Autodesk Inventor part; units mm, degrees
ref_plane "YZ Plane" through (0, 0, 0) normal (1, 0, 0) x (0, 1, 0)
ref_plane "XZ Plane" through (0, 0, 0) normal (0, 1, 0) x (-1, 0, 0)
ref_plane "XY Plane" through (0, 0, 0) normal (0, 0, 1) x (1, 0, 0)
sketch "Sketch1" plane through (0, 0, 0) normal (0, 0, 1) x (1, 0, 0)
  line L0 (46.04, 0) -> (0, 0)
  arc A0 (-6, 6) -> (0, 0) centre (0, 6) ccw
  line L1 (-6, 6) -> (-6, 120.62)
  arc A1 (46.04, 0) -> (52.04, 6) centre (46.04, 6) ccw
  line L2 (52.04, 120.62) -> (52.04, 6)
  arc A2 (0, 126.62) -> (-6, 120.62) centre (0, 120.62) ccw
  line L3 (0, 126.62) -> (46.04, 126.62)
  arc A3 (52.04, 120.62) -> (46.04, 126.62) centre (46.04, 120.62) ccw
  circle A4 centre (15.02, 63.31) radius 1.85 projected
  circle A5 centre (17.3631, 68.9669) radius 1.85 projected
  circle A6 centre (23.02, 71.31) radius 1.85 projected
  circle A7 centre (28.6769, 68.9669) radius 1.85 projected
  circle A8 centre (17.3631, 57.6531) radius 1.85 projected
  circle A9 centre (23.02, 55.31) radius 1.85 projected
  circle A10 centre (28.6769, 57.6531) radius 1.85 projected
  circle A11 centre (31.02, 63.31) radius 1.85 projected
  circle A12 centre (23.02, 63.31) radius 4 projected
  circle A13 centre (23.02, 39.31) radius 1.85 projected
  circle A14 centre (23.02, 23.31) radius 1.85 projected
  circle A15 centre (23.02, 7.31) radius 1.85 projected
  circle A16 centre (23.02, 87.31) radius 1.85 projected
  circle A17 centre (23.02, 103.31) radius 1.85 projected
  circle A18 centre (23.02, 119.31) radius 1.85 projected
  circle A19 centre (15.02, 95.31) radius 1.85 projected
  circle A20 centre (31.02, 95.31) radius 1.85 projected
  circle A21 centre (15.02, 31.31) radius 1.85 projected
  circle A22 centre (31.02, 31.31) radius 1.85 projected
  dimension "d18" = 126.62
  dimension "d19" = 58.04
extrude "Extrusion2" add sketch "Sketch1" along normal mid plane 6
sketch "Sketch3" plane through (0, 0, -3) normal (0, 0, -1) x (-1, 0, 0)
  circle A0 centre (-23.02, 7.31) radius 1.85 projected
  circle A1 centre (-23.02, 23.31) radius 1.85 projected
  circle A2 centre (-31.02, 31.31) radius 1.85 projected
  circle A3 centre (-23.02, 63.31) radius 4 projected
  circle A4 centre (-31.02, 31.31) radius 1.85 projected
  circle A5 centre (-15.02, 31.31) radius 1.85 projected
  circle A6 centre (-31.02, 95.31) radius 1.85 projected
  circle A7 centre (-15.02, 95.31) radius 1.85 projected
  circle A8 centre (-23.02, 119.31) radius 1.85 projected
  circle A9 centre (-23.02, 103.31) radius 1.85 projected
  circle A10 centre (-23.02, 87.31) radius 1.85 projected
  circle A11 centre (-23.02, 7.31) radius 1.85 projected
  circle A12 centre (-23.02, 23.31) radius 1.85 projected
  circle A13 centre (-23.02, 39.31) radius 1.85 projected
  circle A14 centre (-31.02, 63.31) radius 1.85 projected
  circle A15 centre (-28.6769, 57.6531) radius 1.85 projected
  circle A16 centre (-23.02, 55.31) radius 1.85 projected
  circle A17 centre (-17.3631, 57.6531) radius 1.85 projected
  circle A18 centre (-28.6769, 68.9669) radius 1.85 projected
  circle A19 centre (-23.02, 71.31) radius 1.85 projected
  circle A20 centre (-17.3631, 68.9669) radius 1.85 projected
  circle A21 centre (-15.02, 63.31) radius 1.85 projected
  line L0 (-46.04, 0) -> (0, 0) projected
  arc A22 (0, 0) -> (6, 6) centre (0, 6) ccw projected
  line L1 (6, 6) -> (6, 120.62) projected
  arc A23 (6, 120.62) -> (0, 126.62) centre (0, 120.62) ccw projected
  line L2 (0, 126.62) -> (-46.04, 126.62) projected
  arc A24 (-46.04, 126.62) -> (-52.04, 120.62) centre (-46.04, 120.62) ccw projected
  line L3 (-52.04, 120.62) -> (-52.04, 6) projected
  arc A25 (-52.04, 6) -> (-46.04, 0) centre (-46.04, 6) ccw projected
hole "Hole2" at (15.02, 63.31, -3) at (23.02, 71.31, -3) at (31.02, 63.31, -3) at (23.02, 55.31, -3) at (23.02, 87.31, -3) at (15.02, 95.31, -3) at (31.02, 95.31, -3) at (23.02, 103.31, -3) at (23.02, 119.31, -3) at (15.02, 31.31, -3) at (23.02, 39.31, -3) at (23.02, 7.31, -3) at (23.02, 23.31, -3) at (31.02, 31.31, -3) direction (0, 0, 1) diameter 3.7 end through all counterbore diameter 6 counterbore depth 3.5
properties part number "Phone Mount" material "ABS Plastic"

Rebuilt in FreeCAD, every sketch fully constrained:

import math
import FreeCAD as App
import Part
import Sketcher

V = App.Vector

doc = App.newDocument("Part")
params = doc.addObject("Spreadsheet::Sheet", "Params")
for row, (alias, value) in enumerate([
    ("sketch1_diameter", "8 mm"),
    ("sketch1_radius", "6 mm"),
    ("sketch1_diameter2", "3.7 mm"),
    ("sketch1_width", "46.04 mm"),
    ("pad1_length", "6 mm"),
    ("sketch2_diameter", "3.7 mm"),
    ("hole_diameter", "3.7 mm"),
    ("hole_cbore_diameter", "6 mm"),
    ("hole_cbore_depth", "3.5 mm"),
], start=1):
    params.set(f"A{row}", alias)
    params.set(f"B{row}", "=" + value)
    params.setAlias(f"B{row}", alias)

body = doc.addObject("PartDesign::Body", "Body")

# Sketch on XY plane
sketch1 = body.newObject("Sketcher::SketchObject", "Sketch")
sketch1.AttachmentSupport = (doc.getObject("XY_Plane"), [""])
sketch1.MapMode = "FlatFace"
sketch1.addGeometry(Part.LineSegment(V(0, 0, 0), V(46, 0, 0)), False)
sketch1.addGeometry(Part.ArcOfCircle(Part.Circle(V(46, 6, 0), V(0, 0, 1), 6), math.radians(-90), math.radians(0)), False)
sketch1.addGeometry(Part.LineSegment(V(52, 6, 0), V(52, 120.6, 0)), False)
sketch1.addGeometry(Part.ArcOfCircle(Part.Circle(V(46, 120.6, 0), V(0, 0, 1), 6), math.radians(0), math.radians(90)), False)
sketch1.addGeometry(Part.LineSegment(V(46, 126.6, 0), V(0, 126.6, 0)), False)
sketch1.addGeometry(Part.ArcOfCircle(Part.Circle(V(0, 120.6, 0), V(0, 0, 1), 6), math.radians(90), math.radians(180)), False)
sketch1.addGeometry(Part.LineSegment(V(-6, 120.6, 0), V(-6, 6, 0)), False)
sketch1.addGeometry(Part.ArcOfCircle(Part.Circle(V(0, 6, 0), V(0, 0, 1), 6), math.radians(180), math.radians(270)), False)
sketch1.addGeometry(Part.Circle(V(15, 31.3, 0), V(0, 0, 1), 1.9), False)
sketch1.addGeometry(Part.Circle(V(15, 63.3, 0), V(0, 0, 1), 1.9), False)
sketch1.addGeometry(Part.Circle(V(17.4, 57.7, 0), V(0, 0, 1), 1.9), False)
sketch1.addGeometry(Part.Circle(V(23, 7.3, 0), V(0, 0, 1), 1.9), False)
sketch1.addGeometry(Part.Circle(V(23, 23.3, 0), V(0, 0, 1), 1.9), False)
sketch1.addGeometry(Part.Circle(V(31, 31.3, 0), V(0, 0, 1), 1.9), False)
sketch1.addGeometry(Part.Circle(V(23, 39.3, 0), V(0, 0, 1), 1.9), False)
sketch1.addGeometry(Part.Circle(V(23, 55.3, 0), V(0, 0, 1), 1.9), False)
sketch1.addGeometry(Part.Circle(V(23, 63.3, 0), V(0, 0, 1), 4), False)
sketch1.addGeometry(Part.Circle(V(28.7, 57.7, 0), V(0, 0, 1), 1.9), False)
sketch1.addGeometry(Part.Circle(V(31, 63.3, 0), V(0, 0, 1), 1.9), False)
sketch1.addGeometry(Part.Circle(V(17.4, 69, 0), V(0, 0, 1), 1.9), False)
sketch1.addGeometry(Part.Circle(V(15, 95.3, 0), V(0, 0, 1), 1.9), False)
sketch1.addGeometry(Part.Circle(V(28.7, 69, 0), V(0, 0, 1), 1.9), False)
sketch1.addGeometry(Part.Circle(V(23, 71.3, 0), V(0, 0, 1), 1.9), False)
sketch1.addGeometry(Part.Circle(V(23, 87.3, 0), V(0, 0, 1), 1.9), False)
sketch1.addGeometry(Part.Circle(V(23, 103.3, 0), V(0, 0, 1), 1.9), False)
sketch1.addGeometry(Part.Circle(V(31, 95.3, 0), V(0, 0, 1), 1.9), False)
sketch1.addGeometry(Part.Circle(V(23, 119.3, 0), V(0, 0, 1), 1.9), False)
sketch1.addConstraint(Sketcher.Constraint("Tangent", 0, 2, 1, 1))
sketch1.addConstraint(Sketcher.Constraint("Tangent", 1, 2, 2, 1))
sketch1.addConstraint(Sketcher.Constraint("Tangent", 2, 2, 3, 1))
sketch1.addConstraint(Sketcher.Constraint("Tangent", 3, 2, 4, 1))
sketch1.addConstraint(Sketcher.Constraint("Tangent", 4, 2, 5, 1))
sketch1.addConstraint(Sketcher.Constraint("Tangent", 5, 2, 6, 1))
sketch1.addConstraint(Sketcher.Constraint("Tangent", 6, 2, 7, 1))
sketch1.addConstraint(Sketcher.Constraint("Tangent", 7, 2, 0, 1))
sketch1.addConstraint(Sketcher.Constraint("Horizontal", 0))
sketch1.addConstraint(Sketcher.Constraint("Vertical", 2))
sketch1.addConstraint(Sketcher.Constraint("Horizontal", 4))
sketch1.addConstraint(Sketcher.Constraint("Vertical", 6))
sketch1.addConstraint(Sketcher.Constraint("Coincident", 7, 2, -1, 1))
sketch1.addConstraint(Sketcher.Constraint("Equal", 1, 3))
sketch1.addConstraint(Sketcher.Constraint("Equal", 3, 5))
sketch1.addConstraint(Sketcher.Constraint("Equal", 5, 7))
sketch1.addConstraint(Sketcher.Constraint("Equal", 8, 9))
sketch1.addConstraint(Sketcher.Constraint("Equal", 9, 10))
sketch1.addConstraint(Sketcher.Constraint("Equal", 10, 11))
sketch1.addConstraint(Sketcher.Constraint("Equal", 11, 12))
sketch1.addConstraint(Sketcher.Constraint("Equal", 12, 13))
sketch1.addConstraint(Sketcher.Constraint("Equal", 13, 14))
sketch1.addConstraint(Sketcher.Constraint("Equal", 14, 15))
sketch1.addConstraint(Sketcher.Constraint("Equal", 15, 17))
sketch1.addConstraint(Sketcher.Constraint("Equal", 17, 18))
sketch1.addConstraint(Sketcher.Constraint("Equal", 18, 19))
sketch1.addConstraint(Sketcher.Constraint("Equal", 19, 20))
sketch1.addConstraint(Sketcher.Constraint("Equal", 20, 21))
sketch1.addConstraint(Sketcher.Constraint("Equal", 21, 22))
sketch1.addConstraint(Sketcher.Constraint("Equal", 22, 23))
sketch1.addConstraint(Sketcher.Constraint("Equal", 23, 24))
sketch1.addConstraint(Sketcher.Constraint("Equal", 24, 25))
sketch1.addConstraint(Sketcher.Constraint("Equal", 25, 26))
sketch1.addConstraint(Sketcher.Constraint("Horizontal", 8, 3, 13, 3))
sketch1.addConstraint(Sketcher.Constraint("Horizontal", 9, 3, 16, 3))
sketch1.addConstraint(Sketcher.Constraint("Horizontal", 10, 3, 17, 3))
sketch1.addConstraint(Sketcher.Constraint("Horizontal", 16, 3, 18, 3))
sketch1.addConstraint(Sketcher.Constraint("Horizontal", 19, 3, 21, 3))
sketch1.addConstraint(Sketcher.Constraint("Horizontal", 20, 3, 25, 3))
sketch1.addConstraint(Sketcher.Constraint("Vertical", 8, 3, 9, 3))
sketch1.addConstraint(Sketcher.Constraint("Vertical", 11, 3, 12, 3))
sketch1.addConstraint(Sketcher.Constraint("Vertical", 12, 3, 14, 3))
sketch1.addConstraint(Sketcher.Constraint("Vertical", 14, 3, 15, 3))
sketch1.addConstraint(Sketcher.Constraint("Vertical", 15, 3, 16, 3))
sketch1.addConstraint(Sketcher.Constraint("Vertical", 13, 3, 18, 3))
sketch1.addConstraint(Sketcher.Constraint("Vertical", 10, 3, 19, 3))
sketch1.addConstraint(Sketcher.Constraint("Vertical", 9, 3, 20, 3))
sketch1.addConstraint(Sketcher.Constraint("Vertical", 17, 3, 21, 3))
sketch1.addConstraint(Sketcher.Constraint("Vertical", 16, 3, 22, 3))
sketch1.addConstraint(Sketcher.Constraint("Vertical", 22, 3, 23, 3))
sketch1.addConstraint(Sketcher.Constraint("Vertical", 23, 3, 24, 3))
sketch1.addConstraint(Sketcher.Constraint("Vertical", 18, 3, 25, 3))
sketch1.addConstraint(Sketcher.Constraint("Vertical", 24, 3, 26, 3))
sketch1.addConstraint(Sketcher.Constraint("Diameter", 16, 8.0))
sketch1.addConstraint(Sketcher.Constraint("Radius", 1, 6.0))
sketch1.addConstraint(Sketcher.Constraint("Diameter", 8, 3.7))
sketch1.addConstraint(Sketcher.Constraint("DistanceY", -1, 1, 3, 2, 126.62))
sketch1.addConstraint(Sketcher.Constraint("DistanceY", 8, 3, 9, 3, 32.0))
sketch1.addConstraint(Sketcher.Constraint("DistanceX", 8, 3, 11, 3, 8.0))
sketch1.addConstraint(Sketcher.Constraint("DistanceY", 11, 3, 8, 3, 24.0))
sketch1.addConstraint(Sketcher.Constraint("DistanceY", 12, 3, 8, 3, 8.0))
sketch1.addConstraint(Sketcher.Constraint("DistanceX", 12, 3, 13, 3, 8.0))
sketch1.addConstraint(Sketcher.Constraint("DistanceY", 8, 3, 14, 3, 8.0))
sketch1.addConstraint(Sketcher.Constraint("DistanceY", 15, 3, 9, 3, 8.0))
sketch1.addConstraint(Sketcher.Constraint("DistanceY", 9, 3, 20, 3, 32.0))
sketch1.addConstraint(Sketcher.Constraint("DistanceY", 16, 3, 22, 3, 8.0))
sketch1.addConstraint(Sketcher.Constraint("DistanceY", 23, 3, 20, 3, 8.0))
sketch1.addConstraint(Sketcher.Constraint("DistanceY", 20, 3, 24, 3, 8.0))
sketch1.addConstraint(Sketcher.Constraint("DistanceY", 24, 3, 26, 3, 16.0))
sketch1.addConstraint(Sketcher.Constraint("DistanceX", 0, 1, 0, 2, 46.04))
sketch1.addConstraint(Sketcher.Constraint("DistanceX", -1, 1, 8, 3, 15.02))
sketch1.addConstraint(Sketcher.Constraint("DistanceY", -1, 1, 8, 3, 31.31))
sketch1.addConstraint(Sketcher.Constraint("DistanceX", -1, 1, 10, 3, 17.363))
sketch1.addConstraint(Sketcher.Constraint("DistanceY", -1, 1, 10, 3, 57.653))
sketch1.addConstraint(Sketcher.Constraint("DistanceX", -1, 1, 17, 3, 28.677))
sketch1.addConstraint(Sketcher.Constraint("DistanceY", -1, 1, 19, 3, 68.967))
sketch1.setExpression("Constraints[53]", "Params.sketch1_diameter")
sketch1.setExpression("Constraints[54]", "Params.sketch1_radius")
sketch1.setExpression("Constraints[55]", "Params.sketch1_diameter2")
sketch1.setExpression("Constraints[69]", "Params.sketch1_width")
pad1 = body.newObject("PartDesign::Pad", "Pad")
pad1.Profile = sketch1
pad1.setExpression("Length", "Params.pad1_length")
pad1.Midplane = True

# Sketch on XY plane
sketch2 = body.newObject("Sketcher::SketchObject", "Sketch001")
sketch2.AttachmentSupport = (doc.getObject("XY_Plane"), [""])
sketch2.MapMode = "FlatFace"
sketch2.AttachmentOffset = App.Placement(V(0, 0, -3), App.Rotation())
sketch2.addGeometry(Part.Circle(V(15, 63.3, 0), V(0, 0, 1), 1.9), False)
sketch2.addGeometry(Part.Circle(V(23, 71.3, 0), V(0, 0, 1), 1.9), False)
sketch2.addGeometry(Part.Circle(V(31, 63.3, 0), V(0, 0, 1), 1.9), False)
sketch2.addGeometry(Part.Circle(V(23, 55.3, 0), V(0, 0, 1), 1.9), False)
sketch2.addGeometry(Part.Circle(V(23, 87.3, 0), V(0, 0, 1), 1.9), False)
sketch2.addGeometry(Part.Circle(V(15, 95.3, 0), V(0, 0, 1), 1.9), False)
sketch2.addGeometry(Part.Circle(V(31, 95.3, 0), V(0, 0, 1), 1.9), False)
sketch2.addGeometry(Part.Circle(V(23, 103.3, 0), V(0, 0, 1), 1.9), False)
sketch2.addGeometry(Part.Circle(V(23, 119.3, 0), V(0, 0, 1), 1.9), False)
sketch2.addGeometry(Part.Circle(V(15, 31.3, 0), V(0, 0, 1), 1.9), False)
sketch2.addGeometry(Part.Circle(V(23, 39.3, 0), V(0, 0, 1), 1.9), False)
sketch2.addGeometry(Part.Circle(V(23, 7.3, 0), V(0, 0, 1), 1.9), False)
sketch2.addGeometry(Part.Circle(V(23, 23.3, 0), V(0, 0, 1), 1.9), False)
sketch2.addGeometry(Part.Circle(V(31, 31.3, 0), V(0, 0, 1), 1.9), False)
sketch2.addConstraint(Sketcher.Constraint("Equal", 0, 1))
sketch2.addConstraint(Sketcher.Constraint("Equal", 1, 2))
sketch2.addConstraint(Sketcher.Constraint("Equal", 2, 3))
sketch2.addConstraint(Sketcher.Constraint("Equal", 3, 4))
sketch2.addConstraint(Sketcher.Constraint("Equal", 4, 5))
sketch2.addConstraint(Sketcher.Constraint("Equal", 5, 6))
sketch2.addConstraint(Sketcher.Constraint("Equal", 6, 7))
sketch2.addConstraint(Sketcher.Constraint("Equal", 7, 8))
sketch2.addConstraint(Sketcher.Constraint("Equal", 8, 9))
sketch2.addConstraint(Sketcher.Constraint("Equal", 9, 10))
sketch2.addConstraint(Sketcher.Constraint("Equal", 10, 11))
sketch2.addConstraint(Sketcher.Constraint("Equal", 11, 12))
sketch2.addConstraint(Sketcher.Constraint("Equal", 12, 13))
sketch2.addConstraint(Sketcher.Constraint("Horizontal", 0, 3, 2, 3))
sketch2.addConstraint(Sketcher.Constraint("Horizontal", 5, 3, 6, 3))
sketch2.addConstraint(Sketcher.Constraint("Horizontal", 9, 3, 13, 3))
sketch2.addConstraint(Sketcher.Constraint("Vertical", 1, 3, 3, 3))
sketch2.addConstraint(Sketcher.Constraint("Vertical", 3, 3, 4, 3))
sketch2.addConstraint(Sketcher.Constraint("Vertical", 0, 3, 5, 3))
sketch2.addConstraint(Sketcher.Constraint("Vertical", 2, 3, 6, 3))
sketch2.addConstraint(Sketcher.Constraint("Vertical", 4, 3, 7, 3))
sketch2.addConstraint(Sketcher.Constraint("Vertical", 7, 3, 8, 3))
sketch2.addConstraint(Sketcher.Constraint("Vertical", 5, 3, 9, 3))
sketch2.addConstraint(Sketcher.Constraint("Vertical", 8, 3, 10, 3))
sketch2.addConstraint(Sketcher.Constraint("Vertical", 10, 3, 11, 3))
sketch2.addConstraint(Sketcher.Constraint("Vertical", 11, 3, 12, 3))
sketch2.addConstraint(Sketcher.Constraint("Vertical", 6, 3, 13, 3))
sketch2.addConstraint(Sketcher.Constraint("Diameter", 0, 3.7))
sketch2.addConstraint(Sketcher.Constraint("DistanceX", 0, 3, 1, 3, 8.0))
sketch2.addConstraint(Sketcher.Constraint("DistanceY", 0, 3, 1, 3, 8.0))
sketch2.addConstraint(Sketcher.Constraint("DistanceX", 1, 3, 2, 3, 8.0))
sketch2.addConstraint(Sketcher.Constraint("DistanceY", 3, 3, 0, 3, 8.0))
sketch2.addConstraint(Sketcher.Constraint("DistanceY", 1, 3, 4, 3, 16.0))
sketch2.addConstraint(Sketcher.Constraint("DistanceY", 4, 3, 5, 3, 8.0))
sketch2.addConstraint(Sketcher.Constraint("DistanceY", 5, 3, 7, 3, 8.0))
sketch2.addConstraint(Sketcher.Constraint("DistanceY", 7, 3, 8, 3, 16.0))
sketch2.addConstraint(Sketcher.Constraint("DistanceY", 9, 3, 3, 3, 24.0))
sketch2.addConstraint(Sketcher.Constraint("DistanceY", 9, 3, 10, 3, 8.0))
sketch2.addConstraint(Sketcher.Constraint("DistanceY", 11, 3, 9, 3, 24.0))
sketch2.addConstraint(Sketcher.Constraint("DistanceY", 12, 3, 9, 3, 8.0))
sketch2.addConstraint(Sketcher.Constraint("DistanceX", -1, 1, 0, 3, 15.02))
sketch2.addConstraint(Sketcher.Constraint("DistanceY", -1, 1, 0, 3, 63.31))
sketch2.setExpression("Constraints[27]", "Params.sketch2_diameter")
doc.recompute()
hole = body.newObject("PartDesign::Hole", "Hole")
hole.Profile = sketch2
hole.ThreadType = "None"
hole.setExpression("Diameter", "Params.hole_diameter")
hole.DepthType = "ThroughAll"
hole.HoleCutType = "Counterbore"
hole.setExpression("HoleCutDiameter", "Params.hole_cbore_diameter")
hole.setExpression("HoleCutDepth", "Params.hole_cbore_depth")
hole.Reversed = True

doc.recompute()
